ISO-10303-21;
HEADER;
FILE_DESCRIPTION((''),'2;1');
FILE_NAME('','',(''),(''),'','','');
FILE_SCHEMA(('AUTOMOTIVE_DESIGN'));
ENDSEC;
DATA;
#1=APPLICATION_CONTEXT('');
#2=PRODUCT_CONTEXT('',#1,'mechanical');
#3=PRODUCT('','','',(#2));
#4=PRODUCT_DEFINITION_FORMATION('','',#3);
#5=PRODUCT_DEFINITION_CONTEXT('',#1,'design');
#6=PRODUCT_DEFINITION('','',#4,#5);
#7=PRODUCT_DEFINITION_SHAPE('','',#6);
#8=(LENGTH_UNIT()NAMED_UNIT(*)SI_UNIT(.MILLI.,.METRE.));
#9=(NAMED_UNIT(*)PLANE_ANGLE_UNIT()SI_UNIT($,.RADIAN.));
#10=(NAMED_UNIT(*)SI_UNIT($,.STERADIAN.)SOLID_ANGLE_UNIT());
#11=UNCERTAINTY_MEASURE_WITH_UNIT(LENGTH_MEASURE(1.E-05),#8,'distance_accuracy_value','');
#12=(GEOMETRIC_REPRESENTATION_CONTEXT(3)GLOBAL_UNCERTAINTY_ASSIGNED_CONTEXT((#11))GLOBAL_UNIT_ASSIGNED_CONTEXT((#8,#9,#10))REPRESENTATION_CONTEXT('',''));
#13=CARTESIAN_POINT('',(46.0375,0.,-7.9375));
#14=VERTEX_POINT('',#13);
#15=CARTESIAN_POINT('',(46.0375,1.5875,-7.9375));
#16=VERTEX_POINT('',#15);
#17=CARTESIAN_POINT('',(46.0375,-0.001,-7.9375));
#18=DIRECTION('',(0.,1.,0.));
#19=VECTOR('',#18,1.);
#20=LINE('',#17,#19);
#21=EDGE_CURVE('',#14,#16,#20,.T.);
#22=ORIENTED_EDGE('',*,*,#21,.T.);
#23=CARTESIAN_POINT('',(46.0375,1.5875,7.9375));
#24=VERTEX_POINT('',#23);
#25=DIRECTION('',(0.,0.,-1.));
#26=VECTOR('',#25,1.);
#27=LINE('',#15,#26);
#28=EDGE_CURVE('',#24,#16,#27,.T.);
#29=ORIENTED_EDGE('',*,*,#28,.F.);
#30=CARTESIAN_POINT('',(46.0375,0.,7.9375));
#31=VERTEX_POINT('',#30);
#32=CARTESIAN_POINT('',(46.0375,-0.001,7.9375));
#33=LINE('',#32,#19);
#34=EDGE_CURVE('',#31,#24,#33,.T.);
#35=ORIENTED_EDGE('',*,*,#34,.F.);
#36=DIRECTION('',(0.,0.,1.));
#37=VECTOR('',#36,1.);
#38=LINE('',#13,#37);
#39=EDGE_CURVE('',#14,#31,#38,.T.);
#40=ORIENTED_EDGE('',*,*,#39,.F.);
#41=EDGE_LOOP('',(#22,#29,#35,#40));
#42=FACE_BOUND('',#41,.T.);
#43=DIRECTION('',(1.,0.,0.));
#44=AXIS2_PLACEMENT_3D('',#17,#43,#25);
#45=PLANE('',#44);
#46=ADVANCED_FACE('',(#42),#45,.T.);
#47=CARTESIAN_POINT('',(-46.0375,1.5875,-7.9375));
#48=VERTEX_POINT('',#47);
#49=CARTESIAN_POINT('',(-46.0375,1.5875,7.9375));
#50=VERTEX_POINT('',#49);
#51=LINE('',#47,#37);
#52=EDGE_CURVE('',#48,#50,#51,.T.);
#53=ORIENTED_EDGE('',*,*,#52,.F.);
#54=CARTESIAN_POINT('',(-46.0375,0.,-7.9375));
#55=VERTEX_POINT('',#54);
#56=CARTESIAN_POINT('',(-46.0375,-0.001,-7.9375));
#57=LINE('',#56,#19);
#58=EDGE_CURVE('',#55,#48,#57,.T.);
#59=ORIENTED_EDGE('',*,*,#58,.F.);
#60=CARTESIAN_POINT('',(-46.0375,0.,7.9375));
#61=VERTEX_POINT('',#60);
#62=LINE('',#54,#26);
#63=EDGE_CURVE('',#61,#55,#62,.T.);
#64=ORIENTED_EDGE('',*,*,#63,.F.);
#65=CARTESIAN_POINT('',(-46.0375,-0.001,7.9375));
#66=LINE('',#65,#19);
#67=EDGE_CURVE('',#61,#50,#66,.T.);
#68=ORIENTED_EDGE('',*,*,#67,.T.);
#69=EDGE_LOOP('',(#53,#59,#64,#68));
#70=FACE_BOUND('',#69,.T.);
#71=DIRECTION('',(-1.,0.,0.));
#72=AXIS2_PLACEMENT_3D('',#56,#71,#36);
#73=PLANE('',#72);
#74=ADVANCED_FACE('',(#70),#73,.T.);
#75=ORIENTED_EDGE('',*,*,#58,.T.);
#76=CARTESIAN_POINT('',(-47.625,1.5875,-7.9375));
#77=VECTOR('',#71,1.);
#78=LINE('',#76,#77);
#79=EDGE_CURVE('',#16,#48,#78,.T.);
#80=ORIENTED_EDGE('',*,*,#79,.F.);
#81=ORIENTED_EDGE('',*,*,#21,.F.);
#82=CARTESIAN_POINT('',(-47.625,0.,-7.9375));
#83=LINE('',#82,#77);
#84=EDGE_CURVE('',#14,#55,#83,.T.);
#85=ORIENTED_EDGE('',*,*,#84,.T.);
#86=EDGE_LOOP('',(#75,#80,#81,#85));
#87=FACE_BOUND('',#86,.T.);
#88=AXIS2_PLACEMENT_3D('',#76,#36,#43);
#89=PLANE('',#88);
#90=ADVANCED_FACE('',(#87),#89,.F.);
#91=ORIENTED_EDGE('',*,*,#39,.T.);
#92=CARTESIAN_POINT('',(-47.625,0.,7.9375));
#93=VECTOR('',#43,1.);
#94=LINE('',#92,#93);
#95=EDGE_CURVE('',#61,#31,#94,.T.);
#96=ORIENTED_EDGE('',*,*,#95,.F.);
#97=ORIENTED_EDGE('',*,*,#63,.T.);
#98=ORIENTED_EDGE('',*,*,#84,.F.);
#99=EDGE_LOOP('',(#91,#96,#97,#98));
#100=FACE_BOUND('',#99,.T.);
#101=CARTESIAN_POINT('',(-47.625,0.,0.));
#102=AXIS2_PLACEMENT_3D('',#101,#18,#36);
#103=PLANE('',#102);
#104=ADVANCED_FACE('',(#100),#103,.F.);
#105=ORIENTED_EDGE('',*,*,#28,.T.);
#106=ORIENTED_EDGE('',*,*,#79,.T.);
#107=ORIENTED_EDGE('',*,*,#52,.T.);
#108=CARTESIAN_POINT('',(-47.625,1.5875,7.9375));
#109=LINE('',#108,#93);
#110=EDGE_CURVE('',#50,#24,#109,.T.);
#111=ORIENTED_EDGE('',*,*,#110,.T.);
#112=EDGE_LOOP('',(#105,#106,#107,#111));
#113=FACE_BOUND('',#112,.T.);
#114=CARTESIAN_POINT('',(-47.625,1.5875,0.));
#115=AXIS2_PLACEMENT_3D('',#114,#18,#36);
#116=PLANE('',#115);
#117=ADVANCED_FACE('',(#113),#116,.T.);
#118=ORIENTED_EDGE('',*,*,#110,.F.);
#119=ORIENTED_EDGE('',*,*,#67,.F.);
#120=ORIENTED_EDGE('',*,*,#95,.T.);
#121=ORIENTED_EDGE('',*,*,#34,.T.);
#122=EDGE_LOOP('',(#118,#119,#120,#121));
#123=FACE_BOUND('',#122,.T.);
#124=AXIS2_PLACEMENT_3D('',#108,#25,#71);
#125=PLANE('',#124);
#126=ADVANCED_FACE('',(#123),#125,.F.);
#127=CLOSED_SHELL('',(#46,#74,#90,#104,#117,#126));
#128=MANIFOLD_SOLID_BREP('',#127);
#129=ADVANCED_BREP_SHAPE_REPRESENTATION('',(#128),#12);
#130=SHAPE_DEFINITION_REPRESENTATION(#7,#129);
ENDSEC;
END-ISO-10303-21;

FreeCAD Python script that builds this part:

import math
import FreeCAD as App
import Part
import Sketcher
Q = App.Units.Quantity

doc = App.newDocument("Part")
body = doc.addObject("PartDesign::Body", "Body")

sketch1 = body.newObject("Sketcher::SketchObject", "Sketch")
sketch1.AttachmentSupport = (doc.getObject("XZ_Plane"), [""])
sketch1.MapMode = "FlatFace"
sketch1.addGeometry([
    Part.LineSegment(App.Vector(48, -8, 0), App.Vector(-48, -8, 0)),
    Part.ArcOfCircle(Part.Circle(App.Vector(-48, 0, 0), App.Vector(0, 0, 1), 8), math.radians(90), math.radians(270)),
    Part.LineSegment(App.Vector(-48, 8, 0), App.Vector(48, 8, 0)),
    Part.ArcOfCircle(Part.Circle(App.Vector(48, 0, 0), App.Vector(0, 0, 1), 8), math.radians(-90), math.radians(90)),
], False)
sketch1.addConstraint([
    Sketcher.Constraint("Tangent", 0, 2, 1, 2),
    Sketcher.Constraint("Tangent", 1, 1, 2, 1),
    Sketcher.Constraint("Tangent", 2, 2, 3, 2),
    Sketcher.Constraint("Tangent", 3, 1, 0, 1),
    Sketcher.Constraint("Horizontal", 0),
    Sketcher.Constraint("Horizontal", 2),
    Sketcher.Constraint("Symmetric", 1, 3, 3, 3, -1, 1),
    Sketcher.Constraint("Radius", 1, Q("0.3125 in")),
    Sketcher.Constraint("DistanceX", 0, 2, 0, 1, Q("3.75 in")),
])
pad1 = body.newObject("PartDesign::Pad", "Pad")
pad1.Profile = sketch1
pad1.Length = Q("0.0625 in")
pad1.Reversed = True

sketch2 = body.newObject("Sketcher::SketchObject", "Sketch001")
sketch2.AttachmentSupport = (doc.getObject("XZ_Plane"), [""])
sketch2.MapMode = "FlatFace"
sketch2.addGeometry([
    Part.LineSegment(App.Vector(-68, -19, 0), App.Vector(-68, 20, 0)),
    Part.LineSegment(App.Vector(-68, 20, 0), App.Vector(64, 20, 0)),
    Part.LineSegment(App.Vector(64, 20, 0), App.Vector(64, -19, 0)),
    Part.LineSegment(App.Vector(64, -19, 0), App.Vector(-68, -19, 0)),
    Part.LineSegment(App.Vector(46, 8, 0), App.Vector(-46, 8, 0)),
    Part.LineSegment(App.Vector(-46, 8, 0), App.Vector(-46, -8, 0)),
    Part.LineSegment(App.Vector(-46, -8, 0), App.Vector(46, -8, 0)),
    Part.LineSegment(App.Vector(46, -8, 0), App.Vector(46, 8, 0)),
], False)
sketch2.addConstraint([
    Sketcher.Constraint("Coincident", 0, 2, 1, 1),
    Sketcher.Constraint("Coincident", 1, 2, 2, 1),
    Sketcher.Constraint("Coincident", 2, 2, 3, 1),
    Sketcher.Constraint("Coincident", 3, 2, 0, 1),
    Sketcher.Constraint("Coincident", 4, 2, 5, 1),
    Sketcher.Constraint("Coincident", 5, 2, 6, 1),
    Sketcher.Constraint("Coincident", 6, 2, 7, 1),
    Sketcher.Constraint("Coincident", 7, 2, 4, 1),
    Sketcher.Constraint("Vertical", 0),
    Sketcher.Constraint("Horizontal", 1),
    Sketcher.Constraint("Vertical", 2),
    Sketcher.Constraint("Horizontal", 3),
    Sketcher.Constraint("Horizontal", 4),
    Sketcher.Constraint("Vertical", 5),
    Sketcher.Constraint("Horizontal", 6),
    Sketcher.Constraint("Vertical", 7),
    Sketcher.Constraint("Symmetric", 4, 2, 6, 2, -1, 1),
    Sketcher.Constraint("DistanceX", 4, 2, 4, 1, Q("3.625 in")),
    Sketcher.Constraint("DistanceY", 5, 2, 5, 1, Q("0.625 in")),
    Sketcher.Constraint("DistanceX", 1, 1, 1, 2, 132.16833),
    Sketcher.Constraint("DistanceY", 0, 1, 0, 2, 39.63763),
    Sketcher.Constraint("DistanceX", 0, 2, -1, 1, 68.078916),
    Sketcher.Constraint("DistanceY", -1, 1, 0, 2, 20.397936),
])
pocket1 = body.newObject("PartDesign::Pocket", "Pocket")
pocket1.Profile = sketch2
pocket1.Length = Q("0.0625 in")

doc.recompute()
